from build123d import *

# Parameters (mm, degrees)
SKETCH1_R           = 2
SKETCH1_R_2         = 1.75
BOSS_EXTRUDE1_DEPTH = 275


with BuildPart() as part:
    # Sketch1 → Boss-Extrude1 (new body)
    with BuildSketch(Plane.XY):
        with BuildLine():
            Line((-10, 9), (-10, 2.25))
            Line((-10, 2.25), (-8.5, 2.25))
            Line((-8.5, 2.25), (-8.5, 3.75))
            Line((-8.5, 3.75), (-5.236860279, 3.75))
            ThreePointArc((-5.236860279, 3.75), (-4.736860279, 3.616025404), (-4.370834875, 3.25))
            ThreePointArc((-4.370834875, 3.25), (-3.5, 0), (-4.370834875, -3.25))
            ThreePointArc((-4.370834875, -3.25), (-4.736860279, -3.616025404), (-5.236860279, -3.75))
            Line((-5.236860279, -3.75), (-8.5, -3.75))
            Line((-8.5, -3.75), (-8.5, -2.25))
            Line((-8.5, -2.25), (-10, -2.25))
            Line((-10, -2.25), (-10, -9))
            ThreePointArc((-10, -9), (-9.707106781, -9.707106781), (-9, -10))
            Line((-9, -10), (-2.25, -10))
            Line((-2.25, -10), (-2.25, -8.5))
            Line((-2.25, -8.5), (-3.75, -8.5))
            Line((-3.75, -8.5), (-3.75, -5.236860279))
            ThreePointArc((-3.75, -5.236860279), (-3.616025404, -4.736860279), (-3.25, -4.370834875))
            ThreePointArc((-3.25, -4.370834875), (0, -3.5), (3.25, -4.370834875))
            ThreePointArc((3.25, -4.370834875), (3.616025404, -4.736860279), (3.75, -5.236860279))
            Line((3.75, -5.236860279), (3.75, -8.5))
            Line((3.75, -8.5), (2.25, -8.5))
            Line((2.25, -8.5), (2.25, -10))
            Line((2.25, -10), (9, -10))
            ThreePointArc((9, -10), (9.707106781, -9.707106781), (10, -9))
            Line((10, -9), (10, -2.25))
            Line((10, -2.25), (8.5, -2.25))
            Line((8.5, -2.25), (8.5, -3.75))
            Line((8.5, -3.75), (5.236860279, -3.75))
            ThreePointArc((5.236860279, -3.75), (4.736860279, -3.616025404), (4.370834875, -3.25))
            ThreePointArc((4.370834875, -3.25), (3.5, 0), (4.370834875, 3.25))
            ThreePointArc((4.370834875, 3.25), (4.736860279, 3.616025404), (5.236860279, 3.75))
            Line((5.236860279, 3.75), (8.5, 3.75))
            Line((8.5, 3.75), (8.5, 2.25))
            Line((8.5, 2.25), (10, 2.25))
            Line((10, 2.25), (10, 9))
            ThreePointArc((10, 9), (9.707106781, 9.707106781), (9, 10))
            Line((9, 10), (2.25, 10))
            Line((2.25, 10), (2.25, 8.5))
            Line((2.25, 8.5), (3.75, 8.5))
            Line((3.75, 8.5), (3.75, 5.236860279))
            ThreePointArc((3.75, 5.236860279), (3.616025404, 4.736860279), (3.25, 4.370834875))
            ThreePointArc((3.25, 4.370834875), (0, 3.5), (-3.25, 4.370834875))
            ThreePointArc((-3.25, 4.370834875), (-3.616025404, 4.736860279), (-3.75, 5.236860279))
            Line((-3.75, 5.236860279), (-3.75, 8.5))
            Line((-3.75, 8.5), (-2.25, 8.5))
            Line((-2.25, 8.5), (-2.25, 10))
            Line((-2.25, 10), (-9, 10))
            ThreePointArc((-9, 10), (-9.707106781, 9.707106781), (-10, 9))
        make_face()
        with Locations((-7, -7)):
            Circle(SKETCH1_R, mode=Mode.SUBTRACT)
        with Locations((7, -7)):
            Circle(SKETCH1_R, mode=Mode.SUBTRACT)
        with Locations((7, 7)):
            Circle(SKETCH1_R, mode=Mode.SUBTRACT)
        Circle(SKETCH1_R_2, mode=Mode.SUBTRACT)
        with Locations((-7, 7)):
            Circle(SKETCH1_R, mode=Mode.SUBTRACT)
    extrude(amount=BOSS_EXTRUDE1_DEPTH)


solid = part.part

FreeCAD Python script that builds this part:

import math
import FreeCAD as App
import Part
import Sketcher
from FreeCAD import Vector

doc = App.newDocument("Part")
params = doc.addObject("Spreadsheet::Sheet", "Params")
for row, (alias, value) in enumerate([
    ("sketch1_diameter", "4 mm"),
    ("sketch1_radius", "1 mm"),
    ("sketch1_diameter2", "3.5 mm"),
    ("sketch1_radius2", "6.5 mm"),
    ("sketch1_width", "1.5 mm"),
    ("pad1_length", "275 mm"),
], start=1):
    params.set(f"A{row}", alias)
    params.set(f"B{row}", "=" + value)
    params.setAlias(f"B{row}", alias)

body = doc.addObject("PartDesign::Body", "Body")

# Sketch on XY plane
sketch1 = body.newObject("Sketcher::SketchObject", "Sketch")
sketch1.AttachmentSupport = (doc.getObject("XY_Plane"), [""])
sketch1.MapMode = "FlatFace"
sketch1.addGeometry(Part.LineSegment(Vector(-10, 9, 0), Vector(-10, 2.25, 0)), False)
sketch1.addGeometry(Part.LineSegment(Vector(-10, 2.25, 0), Vector(-8.5, 2.25, 0)), False)
sketch1.addGeometry(Part.LineSegment(Vector(-8.5, 2.25, 0), Vector(-8.5, 3.75, 0)), False)
sketch1.addGeometry(Part.LineSegment(Vector(-8.5, 3.75, 0), Vector(-5.23686, 3.75, 0)), False)
sketch1.addGeometry(Part.ArcOfCircle(Part.Circle(Vector(-5.23686, 2.75, 0), Vector(0, 0, 1), 1), math.radians(30), math.radians(90)), False)
sketch1.addGeometry(Part.ArcOfCircle(Part.Circle(Vector(-10, 0, 0), Vector(0, 0, 1), 6.5), math.radians(-30), math.radians(30)), False)
sketch1.addGeometry(Part.ArcOfCircle(Part.Circle(Vector(-5.23686, -2.75, 0), Vector(0, 0, 1), 1), math.radians(-90), math.radians(-30)), False)
sketch1.addGeometry(Part.LineSegment(Vector(-5.23686, -3.75, 0), Vector(-8.5, -3.75, 0)), False)
sketch1.addGeometry(Part.LineSegment(Vector(-8.5, -3.75, 0), Vector(-8.5, -2.25, 0)), False)
sketch1.addGeometry(Part.LineSegment(Vector(-8.5, -2.25, 0), Vector(-10, -2.25, 0)), False)
sketch1.addGeometry(Part.LineSegment(Vector(-10, -2.25, 0), Vector(-10, -9, 0)), False)
sketch1.addGeometry(Part.ArcOfCircle(Part.Circle(Vector(-9, -9, 0), Vector(0, 0, 1), 1), math.radians(-180), math.radians(-90)), False)
sketch1.addGeometry(Part.LineSegment(Vector(-9, -10, 0), Vector(-2.25, -10, 0)), False)
sketch1.addGeometry(Part.LineSegment(Vector(-2.25, -10, 0), Vector(-2.25, -8.5, 0)), False)
sketch1.addGeometry(Part.LineSegment(Vector(-2.25, -8.5, 0), Vector(-3.75, -8.5, 0)), False)
sketch1.addGeometry(Part.LineSegment(Vector(-3.75, -8.5, 0), Vector(-3.75, -5.23686, 0)), False)
sketch1.addGeometry(Part.ArcOfCircle(Part.Circle(Vector(-2.75, -5.23686, 0), Vector(0, 0, 1), 1), math.radians(120), math.radians(180)), False)
sketch1.addGeometry(Part.ArcOfCircle(Part.Circle(Vector(0, -10, 0), Vector(0, 0, 1), 6.5), math.radians(60), math.radians(120)), False)
sketch1.addGeometry(Part.ArcOfCircle(Part.Circle(Vector(2.75, -5.23686, 0), Vector(0, 0, 1), 1), math.radians(0), math.radians(60)), False)
sketch1.addGeometry(Part.LineSegment(Vector(3.75, -5.23686, 0), Vector(3.75, -8.5, 0)), False)
sketch1.addGeometry(Part.LineSegment(Vector(3.75, -8.5, 0), Vector(2.25, -8.5, 0)), False)
sketch1.addGeometry(Part.LineSegment(Vector(2.25, -8.5, 0), Vector(2.25, -10, 0)), False)
sketch1.addGeometry(Part.LineSegment(Vector(2.25, -10, 0), Vector(9, -10, 0)), False)
sketch1.addGeometry(Part.ArcOfCircle(Part.Circle(Vector(9, -9, 0), Vector(0, 0, 1), 1), math.radians(-90), math.radians(0)), False)
sketch1.addGeometry(Part.LineSegment(Vector(10, -9, 0), Vector(10, -2.25, 0)), False)
sketch1.addGeometry(Part.LineSegment(Vector(10, -2.25, 0), Vector(8.5, -2.25, 0)), False)
sketch1.addGeometry(Part.LineSegment(Vector(8.5, -2.25, 0), Vector(8.5, -3.75, 0)), False)
sketch1.addGeometry(Part.LineSegment(Vector(8.5, -3.75, 0), Vector(5.23686, -3.75, 0)), False)
sketch1.addGeometry(Part.ArcOfCircle(Part.Circle(Vector(5.23686, -2.75, 0), Vector(0, 0, 1), 1), math.radians(-150), math.radians(-90)), False)
sketch1.addGeometry(Part.ArcOfCircle(Part.Circle(Vector(10, 0, 0), Vector(0, 0, 1), 6.5), math.radians(150), math.radians(210)), False)
sketch1.addGeometry(Part.ArcOfCircle(Part.Circle(Vector(5.23686, 2.75, 0), Vector(0, 0, 1), 1), math.radians(90), math.radians(150)), False)
sketch1.addGeometry(Part.LineSegment(Vector(5.23686, 3.75, 0), Vector(8.5, 3.75, 0)), False)
sketch1.addGeometry(Part.LineSegment(Vector(8.5, 3.75, 0), Vector(8.5, 2.25, 0)), False)
sketch1.addGeometry(Part.LineSegment(Vector(8.5, 2.25, 0), Vector(10, 2.25, 0)), False)
sketch1.addGeometry(Part.LineSegment(Vector(10, 2.25, 0), Vector(10, 9, 0)), False)
sketch1.addGeometry(Part.ArcOfCircle(Part.Circle(Vector(9, 9, 0), Vector(0, 0, 1), 1), math.radians(0), math.radians(90)), False)
sketch1.addGeometry(Part.LineSegment(Vector(9, 10, 0), Vector(2.25, 10, 0)), False)
sketch1.addGeometry(Part.LineSegment(Vector(2.25, 10, 0), Vector(2.25, 8.5, 0)), False)
sketch1.addGeometry(Part.LineSegment(Vector(2.25, 8.5, 0), Vector(3.75, 8.5, 0)), False)
sketch1.addGeometry(Part.LineSegment(Vector(3.75, 8.5, 0), Vector(3.75, 5.23686, 0)), False)
sketch1.addGeometry(Part.ArcOfCircle(Part.Circle(Vector(2.75, 5.23686, 0), Vector(0, 0, 1), 1), math.radians(-60), math.radians(0)), False)
sketch1.addGeometry(Part.ArcOfCircle(Part.Circle(Vector(0, 10, 0), Vector(0, 0, 1), 6.5), math.radians(-120), math.radians(-60)), False)
sketch1.addGeometry(Part.ArcOfCircle(Part.Circle(Vector(-2.75, 5.23686, 0), Vector(0, 0, 1), 1), math.radians(180), math.radians(240)), False)
sketch1.addGeometry(Part.LineSegment(Vector(-3.75, 5.23686, 0), Vector(-3.75, 8.5, 0)), False)
sketch1.addGeometry(Part.LineSegment(Vector(-3.75, 8.5, 0), Vector(-2.25, 8.5, 0)), False)
sketch1.addGeometry(Part.LineSegment(Vector(-2.25, 8.5, 0), Vector(-2.25, 10, 0)), False)
sketch1.addGeometry(Part.LineSegment(Vector(-2.25, 10, 0), Vector(-9, 10, 0)), False)
sketch1.addGeometry(Part.ArcOfCircle(Part.Circle(Vector(-9, 9, 0), Vector(0, 0, 1), 1), math.radians(90), math.radians(180)), False)
sketch1.addGeometry(Part.Circle(Vector(-7, -7, 0), Vector(0, 0, 1), 2), False)
sketch1.addGeometry(Part.Circle(Vector(7, -7, 0), Vector(0, 0, 1), 2), False)
sketch1.addGeometry(Part.Circle(Vector(-7, 7, 0), Vector(0, 0, 1), 2), False)
sketch1.addGeometry(Part.Circle(Vector(0, 0, 0), Vector(0, 0, 1), 1.75), False)
sketch1.addGeometry(Part.Circle(Vector(7, 7, 0), Vector(0, 0, 1), 2), False)
sketch1.addConstraint(Sketcher.Constraint("Coincident", 0, 2, 1, 1))
sketch1.addConstraint(Sketcher.Constraint("Coincident", 1, 2, 2, 1))
sketch1.addConstraint(Sketcher.Constraint("Coincident", 2, 2, 3, 1))
sketch1.addConstraint(Sketcher.Constraint("Tangent", 3, 2, 4, 2))
sketch1.addConstraint(Sketcher.Constraint("Tangent", 4, 1, 5, 2))
sketch1.addConstraint(Sketcher.Constraint("Tangent", 5, 1, 6, 2))
sketch1.addConstraint(Sketcher.Constraint("Tangent", 6, 1, 7, 1))
sketch1.addConstraint(Sketcher.Constraint("Coincident", 7, 2, 8, 1))
sketch1.addConstraint(Sketcher.Constraint("Coincident", 8, 2, 9, 1))
sketch1.addConstraint(Sketcher.Constraint("Coincident", 9, 2, 10, 1))
sketch1.addConstraint(Sketcher.Constraint("Tangent", 10, 2, 11, 1))
sketch1.addConstraint(Sketcher.Constraint("Tangent", 11, 2, 12, 1))
sketch1.addConstraint(Sketcher.Constraint("Coincident", 12, 2, 13, 1))
sketch1.addConstraint(Sketcher.Constraint("Coincident", 13, 2, 14, 1))
sketch1.addConstraint(Sketcher.Constraint("Coincident", 14, 2, 15, 1))
sketch1.addConstraint(Sketcher.Constraint("Tangent", 15, 2, 16, 2))
sketch1.addConstraint(Sketcher.Constraint("Tangent", 16, 1, 17, 2))
sketch1.addConstraint(Sketcher.Constraint("Tangent", 17, 1, 18, 2))
sketch1.addConstraint(Sketcher.Constraint("Tangent", 18, 1, 19, 1))
sketch1.addConstraint(Sketcher.Constraint("Coincident", 19, 2, 20, 1))
sketch1.addConstraint(Sketcher.Constraint("Coincident", 20, 2, 21, 1))
sketch1.addConstraint(Sketcher.Constraint("Coincident", 21, 2, 22, 1))
sketch1.addConstraint(Sketcher.Constraint("Tangent", 22, 2, 23, 1))
sketch1.addConstraint(Sketcher.Constraint("Tangent", 23, 2, 24, 1))
sketch1.addConstraint(Sketcher.Constraint("Coincident", 24, 2, 25, 1))
sketch1.addConstraint(Sketcher.Constraint("Coincident", 25, 2, 26, 1))
sketch1.addConstraint(Sketcher.Constraint("Coincident", 26, 2, 27, 1))
sketch1.addConstraint(Sketcher.Constraint("Tangent", 27, 2, 28, 2))
sketch1.addConstraint(Sketcher.Constraint("Tangent", 28, 1, 29, 2))
sketch1.addConstraint(Sketcher.Constraint("Tangent", 29, 1, 30, 2))
sketch1.addConstraint(Sketcher.Constraint("Tangent", 30, 1, 31, 1))
sketch1.addConstraint(Sketcher.Constraint("Coincident", 31, 2, 32, 1))
sketch1.addConstraint(Sketcher.Constraint("Coincident", 32, 2, 33, 1))
sketch1.addConstraint(Sketcher.Constraint("Coincident", 33, 2, 34, 1))
sketch1.addConstraint(Sketcher.Constraint("Tangent", 34, 2, 35, 1))
sketch1.addConstraint(Sketcher.Constraint("Tangent", 35, 2, 36, 1))
sketch1.addConstraint(Sketcher.Constraint("Coincident", 36, 2, 37, 1))
sketch1.addConstraint(Sketcher.Constraint("Coincident", 37, 2, 38, 1))
sketch1.addConstraint(Sketcher.Constraint("Coincident", 38, 2, 39, 1))
sketch1.addConstraint(Sketcher.Constraint("Tangent", 39, 2, 40, 2))
sketch1.addConstraint(Sketcher.Constraint("Tangent", 40, 1, 41, 2))
sketch1.addConstraint(Sketcher.Constraint("Tangent", 41, 1, 42, 2))
sketch1.addConstraint(Sketcher.Constraint("Tangent", 42, 1, 43, 1))
sketch1.addConstraint(Sketcher.Constraint("Coincident", 43, 2, 44, 1))
sketch1.addConstraint(Sketcher.Constraint("Coincident", 44, 2, 45, 1))
sketch1.addConstraint(Sketcher.Constraint("Coincident", 45, 2, 46, 1))
sketch1.addConstraint(Sketcher.Constraint("Tangent", 46, 2, 47, 1))
sketch1.addConstraint(Sketcher.Constraint("Tangent", 47, 2, 0, 1))
sketch1.addConstraint(Sketcher.Constraint("Vertical", 0))
sketch1.addConstraint(Sketcher.Constraint("Horizontal", 1))
sketch1.addConstraint(Sketcher.Constraint("Vertical", 2))
sketch1.addConstraint(Sketcher.Constraint("Horizontal", 3))
sketch1.addConstraint(Sketcher.Constraint("Horizontal", 7))
sketch1.addConstraint(Sketcher.Constraint("Vertical", 8))
sketch1.addConstraint(Sketcher.Constraint("Horizontal", 9))
sketch1.addConstraint(Sketcher.Constraint("Vertical", 10))
sketch1.addConstraint(Sketcher.Constraint("Horizontal", 12))
sketch1.addConstraint(Sketcher.Constraint("Vertical", 13))
sketch1.addConstraint(Sketcher.Constraint("Horizontal", 14))
sketch1.addConstraint(Sketcher.Constraint("Vertical", 15))
sketch1.addConstraint(Sketcher.Constraint("Vertical", 19))
sketch1.addConstraint(Sketcher.Constraint("Horizontal", 20))
sketch1.addConstraint(Sketcher.Constraint("Vertical", 21))
sketch1.addConstraint(Sketcher.Constraint("Horizontal", 22))
sketch1.addConstraint(Sketcher.Constraint("Vertical", 24))
sketch1.addConstraint(Sketcher.Constraint("Horizontal", 25))
sketch1.addConstraint(Sketcher.Constraint("Vertical", 26))
sketch1.addConstraint(Sketcher.Constraint("Horizontal", 27))
sketch1.addConstraint(Sketcher.Constraint("Horizontal", 31))
sketch1.addConstraint(Sketcher.Constraint("Vertical", 32))
sketch1.addConstraint(Sketcher.Constraint("Horizontal", 33))
sketch1.addConstraint(Sketcher.Constraint("Vertical", 34))
sketch1.addConstraint(Sketcher.Constraint("Horizontal", 36))
sketch1.addConstraint(Sketcher.Constraint("Vertical", 37))
sketch1.addConstraint(Sketcher.Constraint("Horizontal", 38))
sketch1.addConstraint(Sketcher.Constraint("Vertical", 39))
sketch1.addConstraint(Sketcher.Constraint("Vertical", 43))
sketch1.addConstraint(Sketcher.Constraint("Horizontal", 44))
sketch1.addConstraint(Sketcher.Constraint("Vertical", 45))
sketch1.addConstraint(Sketcher.Constraint("Horizontal", 46))
sketch1.addConstraint(Sketcher.Constraint("Coincident", 51, 3, -1, 1))
sketch1.addConstraint(Sketcher.Constraint("Equal", 4, 6))
sketch1.addConstraint(Sketcher.Constraint("Equal", 6, 11))
sketch1.addConstraint(Sketcher.Constraint("Equal", 11, 16))
sketch1.addConstraint(Sketcher.Constraint("Equal", 5, 17))
sketch1.addConstraint(Sketcher.Constraint("Equal", 16, 18))
sketch1.addConstraint(Sketcher.Constraint("Equal", 18, 23))
sketch1.addConstraint(Sketcher.Constraint("Equal", 23, 28))
sketch1.addConstraint(Sketcher.Constraint("Equal", 17, 29))
sketch1.addConstraint(Sketcher.Constraint("Equal", 28, 30))
sketch1.addConstraint(Sketcher.Constraint("Equal", 30, 35))
sketch1.addConstraint(Sketcher.Constraint("Equal", 35, 40))
sketch1.addConstraint(Sketcher.Constraint("Equal", 29, 41))
sketch1.addConstraint(Sketcher.Constraint("Equal", 40, 42))
sketch1.addConstraint(Sketcher.Constraint("Equal", 42, 47))
sketch1.addConstraint(Sketcher.Constraint("Equal", 48, 49))
sketch1.addConstraint(Sketcher.Constraint("Equal", 49, 50))
sketch1.addConstraint(Sketcher.Constraint("Equal", 50, 52))
sketch1.addConstraint(Sketcher.Constraint("Symmetric", 4, 3, 28, 3, -1, 1))
sketch1.addConstraint(Sketcher.Constraint("Symmetric", 6, 3, 30, 3, -1, 1))
sketch1.addConstraint(Sketcher.Constraint("Symmetric", 11, 3, 35, 3, -1, 1))
sketch1.addConstraint(Sketcher.Constraint("Symmetric", 16, 3, 40, 3, -1, 1))
sketch1.addConstraint(Sketcher.Constraint("Symmetric", 18, 3, 42, 3, -1, 1))
sketch1.addConstraint(Sketcher.Constraint("Symmetric", 23, 3, 47, 3, -1, 1))
sketch1.addConstraint(Sketcher.Constraint("Symmetric", 49, 3, 50, 3, -1, 1))
sketch1.addConstraint(Sketcher.Constraint("Symmetric", 48, 3, 52, 3, -1, 1))
sketch1.addConstraint(Sketcher.Constraint("Symmetric", 1, 2, 25, 2, -1, 1))
sketch1.addConstraint(Sketcher.Constraint("Symmetric", 8, 2, 32, 2, -1, 1))
sketch1.addConstraint(Sketcher.Constraint("Symmetric", 13, 2, 37, 2, -1, 1))
sketch1.addConstraint(Sketcher.Constraint("Symmetric", 20, 2, 44, 2, -1, 1))
sketch1.addConstraint(Sketcher.Constraint("Symmetric", 16, 3, 18, 3, -2))
sketch1.addConstraint(Sketcher.Constraint("Symmetric", 11, 3, 23, 3, -2))
sketch1.addConstraint(Sketcher.Constraint("Symmetric", 6, 3, 28, 3, -2))
sketch1.addConstraint(Sketcher.Constraint("Symmetric", 48, 3, 49, 3, -2))
sketch1.addConstraint(Sketcher.Constraint("Symmetric", 13, 2, 20, 2, -2))
sketch1.addConstraint(Sketcher.Constraint("Symmetric", 8, 2, 25, 2, -2))
sketch1.addConstraint(Sketcher.Constraint("Horizontal", 17, 3, 11, 2))
sketch1.addConstraint(Sketcher.Constraint("Vertical", 5, 3, 0, 2))
sketch1.addConstraint(Sketcher.Constraint("Equal", 9, 14))
sketch1.addConstraint(Sketcher.Constraint("Equal", 46, 0))
sketch1.addConstraint(Sketcher.Constraint("Equal", 44, 2))
sketch1.addConstraint(Sketcher.Constraint("Equal", 8, 13))
sketch1.addConstraint(Sketcher.Constraint("Equal", 31, 15))
sketch1.addConstraint(Sketcher.Constraint("Diameter", 48, 4.0))
sketch1.addConstraint(Sketcher.Constraint("Radius", 4, 1.0))
sketch1.addConstraint(Sketcher.Constraint("Diameter", 51, 3.5))
sketch1.addConstraint(Sketcher.Constraint("Radius", 5, 6.5))
sketch1.addConstraint(Sketcher.Constraint("DistanceX", 1, 1, 1, 2, 1.5))
sketch1.addConstraint(Sketcher.Constraint("DistanceX", 5, 3, -1, 1, 10.0))
sketch1.addConstraint(Sketcher.Constraint("DistanceX", 48, 3, -1, 1, 7.0))
sketch1.addConstraint(Sketcher.Constraint("DistanceY", 48, 3, -1, 1, 7.0))
sketch1.addConstraint(Sketcher.Constraint("DistanceX", 12, 1, 12, 2, 6.75))
sketch1.setExpression("Constraints[123]", "Params.sketch1_diameter")
sketch1.setExpression("Constraints[124]", "Params.sketch1_radius")
sketch1.setExpression("Constraints[125]", "Params.sketch1_diameter2")
sketch1.setExpression("Constraints[126]", "Params.sketch1_radius2")
sketch1.setExpression("Constraints[127]", "Params.sketch1_width")
pad1 = body.newObject("PartDesign::Pad", "Pad")
pad1.Profile = sketch1
pad1.setExpression("Length", "Params.pad1_length")

doc.recompute()
